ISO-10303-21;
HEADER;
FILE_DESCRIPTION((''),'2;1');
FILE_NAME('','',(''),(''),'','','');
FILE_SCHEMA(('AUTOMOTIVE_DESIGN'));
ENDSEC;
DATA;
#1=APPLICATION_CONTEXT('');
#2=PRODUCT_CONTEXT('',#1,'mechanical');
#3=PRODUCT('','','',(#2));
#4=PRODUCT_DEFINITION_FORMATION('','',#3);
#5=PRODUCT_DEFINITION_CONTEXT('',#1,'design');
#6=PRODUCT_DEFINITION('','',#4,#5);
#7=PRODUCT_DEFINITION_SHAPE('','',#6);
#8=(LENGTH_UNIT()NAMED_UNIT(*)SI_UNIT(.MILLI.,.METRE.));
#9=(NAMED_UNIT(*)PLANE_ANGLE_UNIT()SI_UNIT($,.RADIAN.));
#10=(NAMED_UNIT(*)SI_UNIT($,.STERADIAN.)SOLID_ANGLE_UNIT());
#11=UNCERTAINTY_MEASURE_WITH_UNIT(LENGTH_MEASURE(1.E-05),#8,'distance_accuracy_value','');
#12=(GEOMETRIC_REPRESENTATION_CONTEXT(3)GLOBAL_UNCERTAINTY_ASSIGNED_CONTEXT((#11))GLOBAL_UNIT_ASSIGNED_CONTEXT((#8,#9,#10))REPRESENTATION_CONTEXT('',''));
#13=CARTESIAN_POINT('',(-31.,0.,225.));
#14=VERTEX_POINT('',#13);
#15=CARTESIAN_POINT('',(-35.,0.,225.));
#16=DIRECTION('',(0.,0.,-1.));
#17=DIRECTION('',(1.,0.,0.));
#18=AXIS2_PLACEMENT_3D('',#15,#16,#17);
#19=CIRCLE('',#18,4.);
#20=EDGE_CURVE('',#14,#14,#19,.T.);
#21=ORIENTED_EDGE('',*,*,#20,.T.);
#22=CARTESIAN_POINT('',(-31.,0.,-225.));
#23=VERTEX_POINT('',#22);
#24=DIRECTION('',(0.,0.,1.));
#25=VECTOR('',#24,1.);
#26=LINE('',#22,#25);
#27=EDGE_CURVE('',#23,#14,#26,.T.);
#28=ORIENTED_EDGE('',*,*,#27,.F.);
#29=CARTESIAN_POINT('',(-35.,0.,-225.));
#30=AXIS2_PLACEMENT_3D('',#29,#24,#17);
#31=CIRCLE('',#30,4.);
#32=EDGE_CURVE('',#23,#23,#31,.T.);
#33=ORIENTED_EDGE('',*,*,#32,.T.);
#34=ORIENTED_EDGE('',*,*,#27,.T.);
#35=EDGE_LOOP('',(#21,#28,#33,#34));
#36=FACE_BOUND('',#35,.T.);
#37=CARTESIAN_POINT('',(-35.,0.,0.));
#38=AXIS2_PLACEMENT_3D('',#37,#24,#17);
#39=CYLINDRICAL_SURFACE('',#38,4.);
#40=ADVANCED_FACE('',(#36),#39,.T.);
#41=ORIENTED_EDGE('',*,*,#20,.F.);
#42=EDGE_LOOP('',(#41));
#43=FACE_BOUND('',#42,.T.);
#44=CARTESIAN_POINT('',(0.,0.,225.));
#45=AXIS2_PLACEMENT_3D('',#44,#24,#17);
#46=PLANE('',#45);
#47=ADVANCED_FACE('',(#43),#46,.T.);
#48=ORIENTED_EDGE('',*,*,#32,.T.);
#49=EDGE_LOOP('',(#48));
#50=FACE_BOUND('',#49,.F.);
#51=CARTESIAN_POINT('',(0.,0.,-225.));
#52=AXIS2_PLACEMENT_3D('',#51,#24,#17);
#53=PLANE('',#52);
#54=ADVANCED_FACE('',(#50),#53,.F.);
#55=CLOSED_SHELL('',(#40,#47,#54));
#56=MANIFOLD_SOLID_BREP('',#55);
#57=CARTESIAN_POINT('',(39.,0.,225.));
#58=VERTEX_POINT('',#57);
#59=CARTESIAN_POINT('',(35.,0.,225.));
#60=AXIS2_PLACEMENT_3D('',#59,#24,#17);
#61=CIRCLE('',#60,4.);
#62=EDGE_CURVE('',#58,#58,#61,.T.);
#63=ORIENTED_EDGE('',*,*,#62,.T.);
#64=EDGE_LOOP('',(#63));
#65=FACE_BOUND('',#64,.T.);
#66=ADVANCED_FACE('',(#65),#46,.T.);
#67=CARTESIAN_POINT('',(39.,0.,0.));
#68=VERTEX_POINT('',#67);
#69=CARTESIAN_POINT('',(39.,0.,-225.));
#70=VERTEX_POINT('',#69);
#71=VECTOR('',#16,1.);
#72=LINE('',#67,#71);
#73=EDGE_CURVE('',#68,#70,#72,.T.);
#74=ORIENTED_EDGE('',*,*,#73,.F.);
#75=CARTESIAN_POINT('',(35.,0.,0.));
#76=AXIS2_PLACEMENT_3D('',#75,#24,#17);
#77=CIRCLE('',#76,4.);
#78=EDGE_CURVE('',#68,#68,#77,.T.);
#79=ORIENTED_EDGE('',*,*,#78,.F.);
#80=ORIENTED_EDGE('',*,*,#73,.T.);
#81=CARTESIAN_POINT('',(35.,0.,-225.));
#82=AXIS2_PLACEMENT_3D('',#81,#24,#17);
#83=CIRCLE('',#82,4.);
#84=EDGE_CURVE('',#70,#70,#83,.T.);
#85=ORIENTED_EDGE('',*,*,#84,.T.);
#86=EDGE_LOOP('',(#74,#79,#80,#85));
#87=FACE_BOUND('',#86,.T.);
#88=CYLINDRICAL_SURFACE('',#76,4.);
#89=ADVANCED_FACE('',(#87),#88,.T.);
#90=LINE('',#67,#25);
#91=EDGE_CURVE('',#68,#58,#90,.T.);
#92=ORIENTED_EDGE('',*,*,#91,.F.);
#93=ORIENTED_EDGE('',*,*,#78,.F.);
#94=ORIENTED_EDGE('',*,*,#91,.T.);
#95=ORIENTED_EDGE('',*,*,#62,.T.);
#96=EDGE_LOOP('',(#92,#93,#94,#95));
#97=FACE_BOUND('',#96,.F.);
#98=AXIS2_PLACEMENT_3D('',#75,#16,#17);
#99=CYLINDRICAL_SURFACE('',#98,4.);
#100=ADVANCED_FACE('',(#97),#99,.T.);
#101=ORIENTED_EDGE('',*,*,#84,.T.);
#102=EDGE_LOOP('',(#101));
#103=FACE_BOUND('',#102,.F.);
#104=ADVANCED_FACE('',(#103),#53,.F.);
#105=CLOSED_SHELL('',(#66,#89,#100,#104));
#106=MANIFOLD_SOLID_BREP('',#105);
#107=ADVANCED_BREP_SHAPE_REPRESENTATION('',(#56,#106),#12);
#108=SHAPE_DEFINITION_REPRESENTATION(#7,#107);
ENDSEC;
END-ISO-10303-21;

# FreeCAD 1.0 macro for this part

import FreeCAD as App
import Part
import Sketcher
Q = App.Units.Quantity

doc = App.newDocument("Part")
body = doc.addObject("PartDesign::Body", "Body")
body.AllowCompound = True

# Sketch on XY plane
sketch1 = body.newObject("Sketcher::SketchObject", "Sketch")
sketch1.AttachmentSupport = (doc.getObject("XY_Plane"), [""])
sketch1.MapMode = "FlatFace"
sketch1.addGeometry([
    Part.Circle(App.Vector(-35, 0, 0), App.Vector(0, 0, 1), 4),
    Part.Circle(App.Vector(35, 0, 0), App.Vector(0, 0, 1), 4),
], False)
sketch1.addConstraint([
    Sketcher.Constraint("Equal", 0, 1),
    Sketcher.Constraint("Symmetric", 0, 3, 1, 3, -1, 1),
    Sketcher.Constraint("PointOnObject", 0, 3, -1),
    Sketcher.Constraint("Diameter", 0, Q("8 mm")),
    Sketcher.Constraint("DistanceX", 0, 3, 1, 3, Q("70 mm")),
])
pad1 = body.newObject("PartDesign::Pad", "Pad")
pad1.Profile = sketch1
pad1.Length = 450
pad1.Midplane = True

doc.recompute()
